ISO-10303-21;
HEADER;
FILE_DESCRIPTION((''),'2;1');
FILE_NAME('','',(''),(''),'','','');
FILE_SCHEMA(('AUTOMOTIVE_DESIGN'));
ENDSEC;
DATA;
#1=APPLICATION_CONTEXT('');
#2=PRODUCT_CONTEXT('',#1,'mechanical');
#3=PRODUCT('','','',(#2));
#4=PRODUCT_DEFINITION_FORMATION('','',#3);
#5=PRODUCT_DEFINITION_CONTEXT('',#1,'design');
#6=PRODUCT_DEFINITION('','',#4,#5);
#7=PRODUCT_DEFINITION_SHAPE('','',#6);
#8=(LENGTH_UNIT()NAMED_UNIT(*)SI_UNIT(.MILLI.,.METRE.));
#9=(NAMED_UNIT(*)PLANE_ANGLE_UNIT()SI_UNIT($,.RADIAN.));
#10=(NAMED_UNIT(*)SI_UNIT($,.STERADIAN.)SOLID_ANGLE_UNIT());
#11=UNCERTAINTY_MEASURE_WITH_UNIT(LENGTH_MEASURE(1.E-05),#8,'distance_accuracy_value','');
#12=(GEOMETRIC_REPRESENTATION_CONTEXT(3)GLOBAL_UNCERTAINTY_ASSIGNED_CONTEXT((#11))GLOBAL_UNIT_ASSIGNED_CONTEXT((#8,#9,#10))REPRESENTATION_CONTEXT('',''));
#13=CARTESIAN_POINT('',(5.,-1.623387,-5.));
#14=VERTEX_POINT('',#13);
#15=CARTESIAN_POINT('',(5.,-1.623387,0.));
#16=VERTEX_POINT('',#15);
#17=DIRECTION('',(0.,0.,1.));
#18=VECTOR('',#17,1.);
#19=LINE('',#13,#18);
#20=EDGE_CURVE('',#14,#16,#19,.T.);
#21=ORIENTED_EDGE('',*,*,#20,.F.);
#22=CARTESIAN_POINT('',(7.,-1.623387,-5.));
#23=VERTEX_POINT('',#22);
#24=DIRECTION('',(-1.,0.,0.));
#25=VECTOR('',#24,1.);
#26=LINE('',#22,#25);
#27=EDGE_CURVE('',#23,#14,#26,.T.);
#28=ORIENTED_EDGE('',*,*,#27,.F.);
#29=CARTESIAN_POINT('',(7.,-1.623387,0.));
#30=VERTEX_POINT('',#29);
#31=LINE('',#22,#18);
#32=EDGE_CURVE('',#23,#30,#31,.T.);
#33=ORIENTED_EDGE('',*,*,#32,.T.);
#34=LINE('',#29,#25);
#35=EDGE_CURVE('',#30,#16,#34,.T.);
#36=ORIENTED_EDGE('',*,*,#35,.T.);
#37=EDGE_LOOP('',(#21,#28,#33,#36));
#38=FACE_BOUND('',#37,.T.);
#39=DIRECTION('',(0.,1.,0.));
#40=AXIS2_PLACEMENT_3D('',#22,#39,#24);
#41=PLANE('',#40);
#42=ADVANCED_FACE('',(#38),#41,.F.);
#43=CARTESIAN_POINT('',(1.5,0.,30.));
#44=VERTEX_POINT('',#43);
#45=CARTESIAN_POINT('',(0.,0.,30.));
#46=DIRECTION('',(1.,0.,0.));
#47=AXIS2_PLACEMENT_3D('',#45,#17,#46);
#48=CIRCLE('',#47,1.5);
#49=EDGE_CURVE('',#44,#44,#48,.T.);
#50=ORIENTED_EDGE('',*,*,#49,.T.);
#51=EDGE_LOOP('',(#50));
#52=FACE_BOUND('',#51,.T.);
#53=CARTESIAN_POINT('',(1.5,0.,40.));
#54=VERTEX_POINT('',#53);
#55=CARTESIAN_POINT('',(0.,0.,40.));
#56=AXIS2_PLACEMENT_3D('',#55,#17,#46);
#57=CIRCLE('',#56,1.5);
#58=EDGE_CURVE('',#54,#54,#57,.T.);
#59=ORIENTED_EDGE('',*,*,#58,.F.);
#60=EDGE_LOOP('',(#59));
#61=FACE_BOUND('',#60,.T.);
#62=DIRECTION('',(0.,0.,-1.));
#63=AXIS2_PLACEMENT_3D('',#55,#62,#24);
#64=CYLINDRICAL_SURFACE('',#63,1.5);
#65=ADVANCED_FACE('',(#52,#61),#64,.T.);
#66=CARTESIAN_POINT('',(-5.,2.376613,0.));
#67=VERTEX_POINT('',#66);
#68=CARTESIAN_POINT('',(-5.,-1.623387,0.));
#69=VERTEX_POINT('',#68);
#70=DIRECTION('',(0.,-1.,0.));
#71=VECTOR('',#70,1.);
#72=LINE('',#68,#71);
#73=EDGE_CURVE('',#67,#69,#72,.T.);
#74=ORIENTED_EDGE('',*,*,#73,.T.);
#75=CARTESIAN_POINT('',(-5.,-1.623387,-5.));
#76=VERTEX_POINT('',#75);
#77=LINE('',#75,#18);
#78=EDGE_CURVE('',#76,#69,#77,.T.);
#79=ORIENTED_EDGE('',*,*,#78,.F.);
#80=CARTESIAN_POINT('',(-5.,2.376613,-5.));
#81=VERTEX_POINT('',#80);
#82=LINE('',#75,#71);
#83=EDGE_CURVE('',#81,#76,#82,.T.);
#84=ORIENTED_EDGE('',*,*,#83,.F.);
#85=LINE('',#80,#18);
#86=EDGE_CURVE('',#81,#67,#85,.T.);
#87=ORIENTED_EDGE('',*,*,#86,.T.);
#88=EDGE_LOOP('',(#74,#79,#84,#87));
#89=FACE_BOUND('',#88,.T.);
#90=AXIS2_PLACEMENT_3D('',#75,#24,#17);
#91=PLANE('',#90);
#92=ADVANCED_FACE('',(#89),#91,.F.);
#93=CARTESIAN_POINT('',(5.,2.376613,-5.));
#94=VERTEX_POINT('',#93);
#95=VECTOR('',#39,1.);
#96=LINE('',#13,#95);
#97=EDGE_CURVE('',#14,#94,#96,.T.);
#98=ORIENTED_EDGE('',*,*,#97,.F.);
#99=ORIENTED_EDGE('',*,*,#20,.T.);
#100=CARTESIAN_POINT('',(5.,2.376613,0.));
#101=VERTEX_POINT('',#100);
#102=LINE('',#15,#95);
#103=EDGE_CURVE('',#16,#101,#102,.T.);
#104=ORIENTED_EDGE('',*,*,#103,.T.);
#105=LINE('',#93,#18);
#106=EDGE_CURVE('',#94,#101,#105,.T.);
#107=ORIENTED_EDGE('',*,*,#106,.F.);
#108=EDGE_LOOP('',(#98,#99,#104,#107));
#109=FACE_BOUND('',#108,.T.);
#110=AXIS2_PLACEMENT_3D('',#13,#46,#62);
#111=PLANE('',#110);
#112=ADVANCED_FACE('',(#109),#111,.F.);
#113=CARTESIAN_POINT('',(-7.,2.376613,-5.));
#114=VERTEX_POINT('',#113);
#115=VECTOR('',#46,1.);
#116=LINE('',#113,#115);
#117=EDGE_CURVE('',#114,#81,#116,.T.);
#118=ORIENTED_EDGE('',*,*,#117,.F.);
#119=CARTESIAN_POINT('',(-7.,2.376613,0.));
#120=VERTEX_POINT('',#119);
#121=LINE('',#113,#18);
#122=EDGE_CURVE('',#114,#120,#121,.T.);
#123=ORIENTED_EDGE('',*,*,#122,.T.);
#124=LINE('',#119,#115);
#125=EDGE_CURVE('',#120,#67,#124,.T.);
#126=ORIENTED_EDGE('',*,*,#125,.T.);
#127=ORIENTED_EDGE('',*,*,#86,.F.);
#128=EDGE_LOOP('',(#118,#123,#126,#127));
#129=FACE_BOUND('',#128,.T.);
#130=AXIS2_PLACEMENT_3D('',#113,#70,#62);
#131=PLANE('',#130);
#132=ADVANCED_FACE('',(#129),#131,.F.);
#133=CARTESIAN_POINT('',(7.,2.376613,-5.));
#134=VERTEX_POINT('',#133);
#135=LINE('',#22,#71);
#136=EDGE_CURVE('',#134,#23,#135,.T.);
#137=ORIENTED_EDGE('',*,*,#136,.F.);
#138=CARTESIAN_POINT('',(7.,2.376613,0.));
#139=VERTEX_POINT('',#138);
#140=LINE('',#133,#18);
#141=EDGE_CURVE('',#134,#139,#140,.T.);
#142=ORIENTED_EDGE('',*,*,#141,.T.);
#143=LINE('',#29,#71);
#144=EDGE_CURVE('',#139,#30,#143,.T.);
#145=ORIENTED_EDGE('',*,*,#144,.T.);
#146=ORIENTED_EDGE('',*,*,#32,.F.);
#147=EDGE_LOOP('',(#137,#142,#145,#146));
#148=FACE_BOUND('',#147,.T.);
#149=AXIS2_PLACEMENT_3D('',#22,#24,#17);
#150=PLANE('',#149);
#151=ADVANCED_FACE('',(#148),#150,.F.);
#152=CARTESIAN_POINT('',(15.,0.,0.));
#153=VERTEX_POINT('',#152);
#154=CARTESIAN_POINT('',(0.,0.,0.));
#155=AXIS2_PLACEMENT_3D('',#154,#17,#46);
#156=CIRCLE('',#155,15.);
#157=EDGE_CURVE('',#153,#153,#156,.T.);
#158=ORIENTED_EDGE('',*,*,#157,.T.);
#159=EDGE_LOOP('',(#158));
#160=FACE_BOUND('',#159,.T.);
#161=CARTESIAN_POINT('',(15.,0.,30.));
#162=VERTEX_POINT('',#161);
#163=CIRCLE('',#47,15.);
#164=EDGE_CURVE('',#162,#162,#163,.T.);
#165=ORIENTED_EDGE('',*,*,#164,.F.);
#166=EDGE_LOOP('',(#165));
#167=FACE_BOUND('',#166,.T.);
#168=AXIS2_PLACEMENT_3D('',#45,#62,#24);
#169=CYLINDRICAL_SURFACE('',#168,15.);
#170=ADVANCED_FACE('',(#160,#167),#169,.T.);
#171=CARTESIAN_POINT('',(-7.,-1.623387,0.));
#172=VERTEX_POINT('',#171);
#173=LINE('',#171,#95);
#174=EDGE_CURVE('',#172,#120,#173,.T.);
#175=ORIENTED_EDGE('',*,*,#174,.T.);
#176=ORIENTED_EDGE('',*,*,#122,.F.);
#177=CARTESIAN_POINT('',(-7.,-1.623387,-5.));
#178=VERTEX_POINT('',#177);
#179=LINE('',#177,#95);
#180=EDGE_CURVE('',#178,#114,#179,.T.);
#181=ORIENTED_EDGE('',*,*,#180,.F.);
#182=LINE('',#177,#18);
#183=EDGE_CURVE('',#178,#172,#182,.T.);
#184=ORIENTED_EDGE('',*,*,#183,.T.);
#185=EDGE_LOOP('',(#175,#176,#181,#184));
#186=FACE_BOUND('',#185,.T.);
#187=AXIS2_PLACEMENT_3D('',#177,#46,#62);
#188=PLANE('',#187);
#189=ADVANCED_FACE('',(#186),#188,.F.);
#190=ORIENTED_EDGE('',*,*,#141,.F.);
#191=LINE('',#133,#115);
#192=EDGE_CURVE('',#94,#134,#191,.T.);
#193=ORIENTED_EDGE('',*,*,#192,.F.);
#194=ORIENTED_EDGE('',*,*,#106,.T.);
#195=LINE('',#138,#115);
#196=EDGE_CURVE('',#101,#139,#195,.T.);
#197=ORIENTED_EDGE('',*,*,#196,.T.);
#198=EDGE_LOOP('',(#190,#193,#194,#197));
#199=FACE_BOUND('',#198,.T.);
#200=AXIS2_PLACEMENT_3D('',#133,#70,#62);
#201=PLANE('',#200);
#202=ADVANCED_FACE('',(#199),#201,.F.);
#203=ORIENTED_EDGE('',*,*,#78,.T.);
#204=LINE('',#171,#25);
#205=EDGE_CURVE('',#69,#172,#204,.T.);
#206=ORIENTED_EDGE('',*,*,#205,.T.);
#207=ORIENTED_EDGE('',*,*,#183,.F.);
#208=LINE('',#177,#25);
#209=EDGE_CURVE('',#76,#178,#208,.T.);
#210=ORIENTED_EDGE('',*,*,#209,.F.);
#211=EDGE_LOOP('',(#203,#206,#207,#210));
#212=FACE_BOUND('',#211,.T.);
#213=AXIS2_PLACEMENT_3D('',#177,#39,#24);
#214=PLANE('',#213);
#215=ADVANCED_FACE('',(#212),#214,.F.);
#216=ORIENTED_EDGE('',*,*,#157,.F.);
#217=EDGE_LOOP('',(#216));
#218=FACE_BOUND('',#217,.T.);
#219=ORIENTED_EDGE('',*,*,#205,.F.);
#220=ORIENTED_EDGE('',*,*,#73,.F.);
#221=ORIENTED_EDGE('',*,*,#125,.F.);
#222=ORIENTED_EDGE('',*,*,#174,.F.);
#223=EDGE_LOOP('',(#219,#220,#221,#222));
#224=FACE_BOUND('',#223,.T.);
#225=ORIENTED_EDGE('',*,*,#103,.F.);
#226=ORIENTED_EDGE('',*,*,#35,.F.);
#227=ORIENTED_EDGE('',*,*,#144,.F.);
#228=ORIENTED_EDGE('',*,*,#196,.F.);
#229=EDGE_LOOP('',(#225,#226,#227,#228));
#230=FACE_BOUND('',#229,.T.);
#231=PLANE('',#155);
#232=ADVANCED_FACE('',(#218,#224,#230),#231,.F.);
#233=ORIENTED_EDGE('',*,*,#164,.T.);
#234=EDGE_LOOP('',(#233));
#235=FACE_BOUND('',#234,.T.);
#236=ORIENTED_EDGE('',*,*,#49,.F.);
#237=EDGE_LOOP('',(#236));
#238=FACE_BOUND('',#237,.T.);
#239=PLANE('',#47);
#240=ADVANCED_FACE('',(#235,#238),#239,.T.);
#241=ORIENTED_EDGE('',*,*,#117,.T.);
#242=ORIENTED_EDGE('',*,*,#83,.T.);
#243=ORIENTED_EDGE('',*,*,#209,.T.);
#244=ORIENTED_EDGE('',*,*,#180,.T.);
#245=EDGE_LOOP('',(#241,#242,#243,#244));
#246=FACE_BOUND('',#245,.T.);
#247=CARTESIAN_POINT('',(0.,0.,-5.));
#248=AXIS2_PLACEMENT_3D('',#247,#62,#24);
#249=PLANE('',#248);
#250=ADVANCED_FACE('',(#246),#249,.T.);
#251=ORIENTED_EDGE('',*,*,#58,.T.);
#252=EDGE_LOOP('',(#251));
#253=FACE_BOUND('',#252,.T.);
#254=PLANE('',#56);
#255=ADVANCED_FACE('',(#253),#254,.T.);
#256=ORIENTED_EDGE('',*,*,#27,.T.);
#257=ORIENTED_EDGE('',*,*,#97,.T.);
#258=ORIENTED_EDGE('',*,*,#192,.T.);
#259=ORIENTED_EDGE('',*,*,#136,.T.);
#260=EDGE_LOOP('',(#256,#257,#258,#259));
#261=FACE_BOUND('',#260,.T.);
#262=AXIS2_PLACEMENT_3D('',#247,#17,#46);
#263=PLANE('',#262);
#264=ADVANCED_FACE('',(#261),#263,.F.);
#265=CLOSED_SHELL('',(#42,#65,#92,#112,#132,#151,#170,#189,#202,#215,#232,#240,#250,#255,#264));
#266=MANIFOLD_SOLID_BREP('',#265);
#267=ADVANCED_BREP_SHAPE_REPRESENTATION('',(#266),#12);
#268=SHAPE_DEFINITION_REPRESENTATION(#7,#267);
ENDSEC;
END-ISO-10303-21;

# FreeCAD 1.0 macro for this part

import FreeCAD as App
import Part
import Sketcher
Q = App.Units.Quantity


def add_polygon(sketch, points):
    """Adds a closed chain of lines whose ends are joined by coincident constraints."""
    first, n = sketch.GeometryCount, len(points)
    for a, b in zip(points, points[1:] + points[:1]):
        sketch.addGeometry(Part.LineSegment(App.Vector(*a, 0), App.Vector(*b, 0)), False)
    for i in range(n):
        sketch.addConstraint(Sketcher.Constraint("Coincident", first + i, 2, first + (i + 1) % n, 1))

doc = App.newDocument("Part")
body = doc.addObject("PartDesign::Body", "Body")

# Sketch on XY plane
sketch1 = body.newObject("Sketcher::SketchObject", "Sketch")
sketch1.AttachmentSupport = (doc.getObject("XY_Plane"), [""])
sketch1.MapMode = "FlatFace"
sketch1.addGeometry(Part.Circle(App.Vector(0, 0, 0), App.Vector(0, 0, 1), 15), False)
sketch1.addConstraint(Sketcher.Constraint("Coincident", 0, 3, -1, 1))
sketch1.addConstraint(Sketcher.Constraint("Diameter", 0, Q("30 mm")))
pad1 = body.newObject("PartDesign::Pad", "Pad")
pad1.Profile = sketch1
pad1.Length = 30

# Sketch on XY plane
sketch2 = body.newObject("Sketcher::SketchObject", "Sketch001")
sketch2.AttachmentSupport = (doc.getObject("XY_Plane"), [""])
sketch2.MapMode = "FlatFace"
sketch2.AttachmentOffset = App.Placement(App.Vector(0, 0, 30), App.Rotation())
sketch2.addGeometry(Part.Circle(App.Vector(0, 0, 0), App.Vector(0, 0, 1), 1.5), False)
sketch2.addConstraint(Sketcher.Constraint("Coincident", 0, 3, -1, 1))
sketch2.addConstraint(Sketcher.Constraint("Diameter", 0, Q("3 mm")))
pad2 = body.newObject("PartDesign::Pad", "Pad001")
pad2.Profile = sketch2
pad2.Length = 10

# Sketch on XY plane
sketch3 = body.newObject("Sketcher::SketchObject", "Sketch002")
sketch3.AttachmentSupport = (doc.getObject("XY_Plane"), [""])
sketch3.MapMode = "FlatFace"
add_polygon(sketch3, [(7, 2.4), (7, -1.6), (5, -1.6), (5, 2.4)])  # lines 0-3
add_polygon(sketch3, [(-5, 2.4), (-5, -1.6), (-7, -1.6), (-7, 2.4)])  # lines 4-7
sketch3.addConstraint(Sketcher.Constraint("Vertical", 0))
sketch3.addConstraint(Sketcher.Constraint("Horizontal", 1))
sketch3.addConstraint(Sketcher.Constraint("Vertical", 2))
sketch3.addConstraint(Sketcher.Constraint("Horizontal", 3))
sketch3.addConstraint(Sketcher.Constraint("Vertical", 4))
sketch3.addConstraint(Sketcher.Constraint("Horizontal", 5))
sketch3.addConstraint(Sketcher.Constraint("Vertical", 6))
sketch3.addConstraint(Sketcher.Constraint("Horizontal", 7))
sketch3.addConstraint(Sketcher.Constraint("Symmetric", 1, 2, 4, 2, -2))
sketch3.addConstraint(Sketcher.Constraint("Symmetric", 3, 2, 6, 2, -2))
sketch3.addConstraint(Sketcher.Constraint("DistanceX", 1, 2, 1, 1, Q("2 mm")))
sketch3.addConstraint(Sketcher.Constraint("DistanceY", 0, 2, 0, 1, Q("4 mm")))
sketch3.addConstraint(Sketcher.Constraint("DistanceX", -1, 1, 0, 2, Q("7 mm")))
sketch3.addConstraint(Sketcher.Constraint("DistanceY", 0, 2, -1, 1, Q("1.623387 mm")))
pad3 = body.newObject("PartDesign::Pad", "Pad002")
pad3.Profile = sketch3
pad3.Length = 5
pad3.Reversed = True

doc.recompute()
